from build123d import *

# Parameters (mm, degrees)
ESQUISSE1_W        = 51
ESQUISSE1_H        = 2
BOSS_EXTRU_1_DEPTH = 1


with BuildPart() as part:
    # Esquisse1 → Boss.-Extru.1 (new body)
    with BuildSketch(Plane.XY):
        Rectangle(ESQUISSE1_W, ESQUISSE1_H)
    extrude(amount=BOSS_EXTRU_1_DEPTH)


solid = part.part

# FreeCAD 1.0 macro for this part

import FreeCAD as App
import Part
import Sketcher

doc = App.newDocument("Part")
body = doc.addObject("PartDesign::Body", "Body")

sketch1 = body.newObject("Sketcher::SketchObject", "Sketch")
sketch1.AttachmentSupport = (doc.getObject("XY_Plane"), [""])
sketch1.MapMode = "FlatFace"
sketch1.addGeometry([
    Part.LineSegment(App.Vector(-25.5, 1, 0), App.Vector(-25.5, -1, 0)),
    Part.LineSegment(App.Vector(-25.5, -1, 0), App.Vector(25.5, -1, 0)),
    Part.LineSegment(App.Vector(25.5, -1, 0), App.Vector(25.5, 1, 0)),
    Part.LineSegment(App.Vector(25.5, 1, 0), App.Vector(-25.5, 1, 0)),
], False)
sketch1.addConstraint([
    Sketcher.Constraint("Coincident", 0, 2, 1, 1),
    Sketcher.Constraint("Coincident", 1, 2, 2, 1),
    Sketcher.Constraint("Coincident", 2, 2, 3, 1),
    Sketcher.Constraint("Coincident", 3, 2, 0, 1),
    Sketcher.Constraint("Vertical", 0),
    Sketcher.Constraint("Horizontal", 1),
    Sketcher.Constraint("Vertical", 2),
    Sketcher.Constraint("Horizontal", 3),
    Sketcher.Constraint("Symmetric", 0, 2, 2, 2, -1, 1),
    Sketcher.Constraint("DistanceX", 1, 1, 1, 2, 51.0),
    Sketcher.Constraint("DistanceY", 0, 2, 0, 1, 2.0),
])
pad1 = body.newObject("PartDesign::Pad", "Pad")
pad1.Profile = sketch1
pad1.Length = 1

doc.recompute()
